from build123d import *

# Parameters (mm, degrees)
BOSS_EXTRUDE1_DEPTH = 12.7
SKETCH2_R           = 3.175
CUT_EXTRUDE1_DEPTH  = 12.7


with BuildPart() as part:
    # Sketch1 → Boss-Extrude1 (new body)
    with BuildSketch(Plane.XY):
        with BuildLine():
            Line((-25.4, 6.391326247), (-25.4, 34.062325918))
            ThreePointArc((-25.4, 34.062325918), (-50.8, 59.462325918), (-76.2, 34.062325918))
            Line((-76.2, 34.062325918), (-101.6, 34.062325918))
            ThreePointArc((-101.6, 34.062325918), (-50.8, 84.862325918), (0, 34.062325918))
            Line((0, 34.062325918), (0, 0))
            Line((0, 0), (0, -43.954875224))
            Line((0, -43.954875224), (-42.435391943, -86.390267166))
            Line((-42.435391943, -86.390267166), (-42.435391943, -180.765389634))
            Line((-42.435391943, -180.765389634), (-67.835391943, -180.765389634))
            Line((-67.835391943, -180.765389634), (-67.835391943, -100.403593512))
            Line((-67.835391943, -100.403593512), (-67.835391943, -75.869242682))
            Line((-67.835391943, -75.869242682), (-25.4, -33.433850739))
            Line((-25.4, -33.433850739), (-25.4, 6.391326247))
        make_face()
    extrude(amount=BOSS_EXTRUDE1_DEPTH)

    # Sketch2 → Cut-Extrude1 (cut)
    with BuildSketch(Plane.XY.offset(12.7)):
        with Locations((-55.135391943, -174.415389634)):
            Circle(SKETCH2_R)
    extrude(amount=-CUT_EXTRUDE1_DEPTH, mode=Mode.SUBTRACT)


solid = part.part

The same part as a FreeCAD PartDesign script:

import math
import FreeCAD as App
import Part
import Sketcher

V = App.Vector
Q = App.Units.Quantity

doc = App.newDocument("Part")
body = doc.addObject("PartDesign::Body", "Body")

sketch1 = doc.addObject("Sketcher::SketchObject", "Sketch")
body.addObject(sketch1)
sketch1.AttachmentSupport = (doc.XY_Plane, [""])
sketch1.MapMode = "FlatFace"
sketch1.addGeometry([
    Part.ArcOfCircle(Part.Circle(V(-50.8, 34.062326, 0), V(0, 0, 1), 25.4), math.radians(0), math.radians(180)),
    Part.LineSegment(V(-25.4, 34.062326, 0), V(-25.4, -33.433851, 0)),
    Part.LineSegment(V(-25.4, -33.433851, 0), V(-67.835392, -75.869243, 0)),
    Part.LineSegment(V(-67.835392, -75.869243, 0), V(-67.835392, -180.76539, 0)),
    Part.LineSegment(V(-67.835392, -180.76539, 0), V(-42.435392, -180.76539, 0)),
    Part.LineSegment(V(-42.435392, -180.76539, 0), V(-42.435392, -86.390267, 0)),
    Part.LineSegment(V(-42.435392, -86.390267, 0), V(0, -43.954875, 0)),
    Part.LineSegment(V(0, -43.954875, 0), V(0, 34.062326, 0)),
    Part.ArcOfCircle(Part.Circle(V(-50.8, 34.062326, 0), V(0, 0, 1), 50.8), math.radians(0), math.radians(180)),
    Part.LineSegment(V(-101.6, 34.062326, 0), V(-76.2, 34.062326, 0)),
], False)
sketch1.addConstraint([
    Sketcher.Constraint("Tangent", 0, 1, 1, 1),
    Sketcher.Constraint("Coincident", 1, 2, 2, 1),
    Sketcher.Constraint("Coincident", 2, 2, 3, 1),
    Sketcher.Constraint("Coincident", 3, 2, 4, 1),
    Sketcher.Constraint("Coincident", 4, 2, 5, 1),
    Sketcher.Constraint("Coincident", 5, 2, 6, 1),
    Sketcher.Constraint("Coincident", 6, 2, 7, 1),
    Sketcher.Constraint("Tangent", 7, 2, 8, 1),
    Sketcher.Constraint("Coincident", 8, 2, 9, 1),
    Sketcher.Constraint("Coincident", 9, 2, 0, 2),
    Sketcher.Constraint("Vertical", 1),
    Sketcher.Constraint("Vertical", 3),
    Sketcher.Constraint("Horizontal", 4),
    Sketcher.Constraint("Vertical", 5),
    Sketcher.Constraint("Vertical", 7),
    Sketcher.Constraint("Horizontal", 9),
    Sketcher.Constraint("Coincident", 8, 3, 0, 3),
    Sketcher.Constraint("PointOnObject", 6, 2, -2),
    Sketcher.Constraint("Parallel", 2, 6),
    Sketcher.Constraint("Horizontal", 7, 2, 8, 2),
    Sketcher.Constraint("Equal", 4, 9),
    Sketcher.Constraint("Radius", 0, Q("1 in")),
    Sketcher.Constraint("Radius", 8, Q("2 in")),
    Sketcher.Constraint("Angle", 2, Q("-135 deg")),
    Sketcher.Constraint("DistanceY", 7, 1, 7, 2, 78.017201),
    Sketcher.Constraint("DistanceY", 1, 2, 1, 1, 67.496177),
    Sketcher.Constraint("DistanceY", 3, 2, 3, 1, 104.896147),
    Sketcher.Constraint("DistanceY", 1, 2, -1, 1, 33.433851),
    Sketcher.Constraint("DistanceX", 2, 2, -1, 1, 67.835392),
])
pad1 = doc.addObject("PartDesign::Pad", "Pad")
body.addObject(pad1)
pad1.Profile = sketch1
pad1.Length = Q("0.5 in")

sketch2 = doc.addObject("Sketcher::SketchObject", "Sketch001")
body.addObject(sketch2)
sketch2.AttachmentSupport = (doc.XY_Plane, [""])
sketch2.MapMode = "FlatFace"
sketch2.AttachmentOffset = App.Placement(V(0, 0, 0.5 * 25.4), App.Rotation())
sketch2.addGeometry(Part.Circle(V(-55.135392, -174.41539, 0), V(0, 0, 1), 3.175), False)
sketch2.addConstraint([
    Sketcher.Constraint("Diameter", 0, Q("0.25 in")),
    Sketcher.Constraint("DistanceX", 0, 3, -1, 1, 55.135392),
    Sketcher.Constraint("DistanceY", 0, 3, -1, 1, 174.41539),
])
pocket1 = doc.addObject("PartDesign::Pocket", "Pocket")
body.addObject(pocket1)
pocket1.Profile = sketch2
pocket1.Length = Q("0.5 in")

doc.recompute()
